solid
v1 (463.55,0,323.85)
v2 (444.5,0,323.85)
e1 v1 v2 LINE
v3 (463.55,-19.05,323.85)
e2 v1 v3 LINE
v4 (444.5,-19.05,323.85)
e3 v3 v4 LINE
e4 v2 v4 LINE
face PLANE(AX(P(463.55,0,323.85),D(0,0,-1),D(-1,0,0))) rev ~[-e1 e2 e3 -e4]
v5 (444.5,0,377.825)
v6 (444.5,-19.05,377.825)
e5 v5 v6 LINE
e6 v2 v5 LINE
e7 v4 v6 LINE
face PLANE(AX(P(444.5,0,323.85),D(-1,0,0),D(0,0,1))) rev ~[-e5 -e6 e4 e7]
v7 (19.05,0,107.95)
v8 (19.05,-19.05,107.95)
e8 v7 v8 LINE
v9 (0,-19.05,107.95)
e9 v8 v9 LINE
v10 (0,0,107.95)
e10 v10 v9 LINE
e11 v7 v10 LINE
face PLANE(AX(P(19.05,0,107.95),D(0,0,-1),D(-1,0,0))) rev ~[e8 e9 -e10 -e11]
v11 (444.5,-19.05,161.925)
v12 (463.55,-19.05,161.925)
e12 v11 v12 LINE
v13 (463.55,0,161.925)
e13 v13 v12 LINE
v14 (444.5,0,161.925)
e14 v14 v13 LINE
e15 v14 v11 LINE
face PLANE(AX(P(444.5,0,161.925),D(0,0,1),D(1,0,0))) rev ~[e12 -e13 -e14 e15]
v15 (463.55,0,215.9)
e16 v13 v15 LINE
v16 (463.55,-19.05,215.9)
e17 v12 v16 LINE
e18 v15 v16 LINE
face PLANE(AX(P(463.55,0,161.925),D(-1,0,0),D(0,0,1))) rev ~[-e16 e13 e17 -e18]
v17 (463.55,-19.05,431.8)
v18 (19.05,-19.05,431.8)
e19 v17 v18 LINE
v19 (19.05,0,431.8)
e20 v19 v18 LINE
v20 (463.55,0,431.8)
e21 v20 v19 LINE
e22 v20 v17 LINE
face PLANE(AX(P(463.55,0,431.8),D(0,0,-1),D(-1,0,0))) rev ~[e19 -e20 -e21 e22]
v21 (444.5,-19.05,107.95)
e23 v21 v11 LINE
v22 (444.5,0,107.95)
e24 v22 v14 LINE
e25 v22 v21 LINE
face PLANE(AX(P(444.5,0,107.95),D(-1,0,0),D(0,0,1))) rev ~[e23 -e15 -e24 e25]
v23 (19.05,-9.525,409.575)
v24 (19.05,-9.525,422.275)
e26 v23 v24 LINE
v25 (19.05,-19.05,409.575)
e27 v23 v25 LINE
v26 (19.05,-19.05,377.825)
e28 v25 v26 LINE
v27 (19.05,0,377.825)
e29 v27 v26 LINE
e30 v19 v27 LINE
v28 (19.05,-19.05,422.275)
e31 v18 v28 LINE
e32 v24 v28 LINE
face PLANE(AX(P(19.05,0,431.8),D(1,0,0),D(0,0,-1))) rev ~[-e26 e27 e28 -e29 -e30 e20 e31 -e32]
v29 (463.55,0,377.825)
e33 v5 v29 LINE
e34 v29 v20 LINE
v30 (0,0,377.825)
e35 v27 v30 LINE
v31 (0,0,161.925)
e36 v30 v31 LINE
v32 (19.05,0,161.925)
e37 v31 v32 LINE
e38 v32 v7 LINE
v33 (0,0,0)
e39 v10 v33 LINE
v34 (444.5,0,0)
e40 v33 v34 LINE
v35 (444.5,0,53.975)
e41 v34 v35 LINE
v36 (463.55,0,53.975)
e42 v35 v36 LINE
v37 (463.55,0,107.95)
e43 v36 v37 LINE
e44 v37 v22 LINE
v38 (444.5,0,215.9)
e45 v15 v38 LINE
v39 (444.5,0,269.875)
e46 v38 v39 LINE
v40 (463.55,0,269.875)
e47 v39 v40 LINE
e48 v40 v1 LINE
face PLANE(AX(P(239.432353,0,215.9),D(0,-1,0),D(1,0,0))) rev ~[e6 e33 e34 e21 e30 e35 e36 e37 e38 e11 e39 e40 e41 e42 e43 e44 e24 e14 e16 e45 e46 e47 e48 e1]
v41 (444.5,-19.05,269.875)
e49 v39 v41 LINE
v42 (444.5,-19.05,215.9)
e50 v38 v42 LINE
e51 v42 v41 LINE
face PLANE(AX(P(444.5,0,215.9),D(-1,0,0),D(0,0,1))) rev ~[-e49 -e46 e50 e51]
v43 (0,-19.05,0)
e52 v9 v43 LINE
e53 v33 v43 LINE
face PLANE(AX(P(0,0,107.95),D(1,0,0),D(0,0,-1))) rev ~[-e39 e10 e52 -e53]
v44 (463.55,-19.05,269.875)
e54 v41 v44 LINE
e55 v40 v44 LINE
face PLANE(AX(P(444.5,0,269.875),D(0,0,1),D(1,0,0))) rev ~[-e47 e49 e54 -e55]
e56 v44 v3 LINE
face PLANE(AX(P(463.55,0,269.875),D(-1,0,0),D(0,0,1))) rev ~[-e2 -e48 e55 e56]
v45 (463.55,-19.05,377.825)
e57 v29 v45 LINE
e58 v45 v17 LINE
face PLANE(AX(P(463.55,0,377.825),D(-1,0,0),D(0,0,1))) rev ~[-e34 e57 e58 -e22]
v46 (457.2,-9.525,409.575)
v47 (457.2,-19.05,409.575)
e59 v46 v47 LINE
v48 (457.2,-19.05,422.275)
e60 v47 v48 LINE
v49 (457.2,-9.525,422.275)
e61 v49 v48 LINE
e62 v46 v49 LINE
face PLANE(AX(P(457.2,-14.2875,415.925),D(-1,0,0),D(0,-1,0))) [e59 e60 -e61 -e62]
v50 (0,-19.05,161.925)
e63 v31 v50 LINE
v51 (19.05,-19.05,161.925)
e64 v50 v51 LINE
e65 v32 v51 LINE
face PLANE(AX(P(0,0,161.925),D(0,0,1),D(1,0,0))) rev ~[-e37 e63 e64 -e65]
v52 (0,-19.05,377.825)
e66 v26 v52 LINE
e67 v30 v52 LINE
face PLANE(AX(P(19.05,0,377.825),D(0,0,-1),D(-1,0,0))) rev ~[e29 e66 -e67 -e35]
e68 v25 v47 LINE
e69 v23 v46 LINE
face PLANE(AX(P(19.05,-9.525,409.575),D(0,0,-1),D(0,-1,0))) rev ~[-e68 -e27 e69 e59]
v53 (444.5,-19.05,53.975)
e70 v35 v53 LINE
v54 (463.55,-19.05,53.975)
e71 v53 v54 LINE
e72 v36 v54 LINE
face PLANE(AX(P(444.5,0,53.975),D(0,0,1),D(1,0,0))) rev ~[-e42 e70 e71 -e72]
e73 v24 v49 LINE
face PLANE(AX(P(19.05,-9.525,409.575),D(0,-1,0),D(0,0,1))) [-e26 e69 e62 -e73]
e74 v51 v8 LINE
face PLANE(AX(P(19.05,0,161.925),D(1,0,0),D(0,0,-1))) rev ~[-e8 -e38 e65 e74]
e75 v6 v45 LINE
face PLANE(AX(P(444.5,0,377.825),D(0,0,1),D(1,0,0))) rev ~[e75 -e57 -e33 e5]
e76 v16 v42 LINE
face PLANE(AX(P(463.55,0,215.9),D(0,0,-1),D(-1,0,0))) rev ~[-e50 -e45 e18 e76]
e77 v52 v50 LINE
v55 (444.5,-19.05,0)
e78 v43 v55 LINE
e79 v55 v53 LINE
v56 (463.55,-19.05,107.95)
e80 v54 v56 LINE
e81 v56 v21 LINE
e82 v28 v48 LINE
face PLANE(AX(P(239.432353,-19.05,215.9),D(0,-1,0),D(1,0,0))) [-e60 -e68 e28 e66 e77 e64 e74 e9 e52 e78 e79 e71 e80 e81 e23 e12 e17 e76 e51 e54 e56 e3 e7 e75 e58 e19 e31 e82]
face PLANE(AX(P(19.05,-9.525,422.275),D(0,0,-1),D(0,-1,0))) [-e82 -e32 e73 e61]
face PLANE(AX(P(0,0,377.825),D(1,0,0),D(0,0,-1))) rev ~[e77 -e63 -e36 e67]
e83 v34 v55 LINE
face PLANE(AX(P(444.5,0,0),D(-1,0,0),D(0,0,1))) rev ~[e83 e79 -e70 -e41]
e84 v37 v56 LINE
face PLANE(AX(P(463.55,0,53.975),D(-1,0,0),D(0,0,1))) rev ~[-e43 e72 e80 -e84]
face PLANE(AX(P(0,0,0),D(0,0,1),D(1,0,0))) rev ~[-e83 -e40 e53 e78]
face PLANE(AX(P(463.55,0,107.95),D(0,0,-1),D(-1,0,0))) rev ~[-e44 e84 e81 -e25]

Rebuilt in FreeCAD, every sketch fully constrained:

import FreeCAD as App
import Part
import Sketcher
from FreeCAD import Vector
Q = App.Units.Quantity


def add_polygon(sketch, points):
    """Adds a closed chain of lines whose ends are joined by coincident constraints."""
    first, n = sketch.GeometryCount, len(points)
    for a, b in zip(points, points[1:] + points[:1]):
        sketch.addGeometry(Part.LineSegment(App.Vector(*a, 0), App.Vector(*b, 0)), False)
    for i in range(n):
        sketch.addConstraint(Sketcher.Constraint("Coincident", first + i, 2, first + (i + 1) % n, 1))

doc = App.newDocument("Part")
body = doc.addObject("PartDesign::Body", "Body")

sketch1 = doc.addObject("Sketcher::SketchObject", "Sketch")
body.addObject(sketch1)
sketch1.AttachmentSupport = (doc.XZ_Plane, [""])
sketch1.MapMode = "FlatFace"
add_polygon(sketch1, [(0, 108), (0, 0), (444, 0), (444, 54), (464, 54), (464, 108), (444, 108), (444, 162), (464, 162), (464, 216), (444, 216), (444, 270), (464, 270), (464, 324), (444, 324), (444, 378), (464, 378), (464, 432), (19, 432), (19, 378), (0, 378), (0, 162), (19, 162), (19, 108)])
sketch1.addConstraint([
    Sketcher.Constraint("Vertical", 0),
    Sketcher.Constraint("Horizontal", 1),
    Sketcher.Constraint("Vertical", 2),
    Sketcher.Constraint("Horizontal", 3),
    Sketcher.Constraint("Vertical", 4),
    Sketcher.Constraint("Horizontal", 5),
    Sketcher.Constraint("Vertical", 6),
    Sketcher.Constraint("Horizontal", 7),
    Sketcher.Constraint("Vertical", 8),
    Sketcher.Constraint("Horizontal", 9),
    Sketcher.Constraint("Vertical", 10),
    Sketcher.Constraint("Horizontal", 11),
    Sketcher.Constraint("Vertical", 12),
    Sketcher.Constraint("Horizontal", 13),
    Sketcher.Constraint("Vertical", 14),
    Sketcher.Constraint("Horizontal", 15),
    Sketcher.Constraint("Vertical", 16),
    Sketcher.Constraint("Horizontal", 17),
    Sketcher.Constraint("Vertical", 18),
    Sketcher.Constraint("Horizontal", 19),
    Sketcher.Constraint("Vertical", 20),
    Sketcher.Constraint("Horizontal", 21),
    Sketcher.Constraint("Vertical", 22),
    Sketcher.Constraint("Horizontal", 23),
    Sketcher.Constraint("Coincident", 0, 2, -1, 1),
    Sketcher.Constraint("PointOnObject", 19, 2, -2),
    Sketcher.Constraint("Horizontal", 15, 2, 18, 2),
    Sketcher.Constraint("Horizontal", 7, 2, 20, 2),
    Sketcher.Constraint("Horizontal", 5, 2, 22, 2),
    Sketcher.Constraint("Vertical", 2, 2, 5, 2),
    Sketcher.Constraint("Vertical", 4, 2, 7, 2),
    Sketcher.Constraint("Vertical", 6, 2, 9, 2),
    Sketcher.Constraint("Vertical", 8, 2, 11, 2),
    Sketcher.Constraint("Vertical", 10, 2, 13, 2),
    Sketcher.Constraint("Vertical", 12, 2, 15, 2),
    Sketcher.Constraint("Vertical", 18, 2, 21, 2),
    Sketcher.Constraint("Equal", 1, 17),
    Sketcher.Constraint("Equal", 2, 4),
    Sketcher.Constraint("Equal", 4, 6),
    Sketcher.Constraint("Equal", 6, 8),
    Sketcher.Constraint("Equal", 8, 10),
    Sketcher.Constraint("Equal", 10, 12),
    Sketcher.Constraint("Equal", 12, 14),
    Sketcher.Constraint("Equal", 14, 16),
    Sketcher.Constraint("DistanceX", 1, 1, 1, 2, Q("17.5 in")),
    Sketcher.Constraint("DistanceY", 20, 2, 20, 1, Q("8.5 in")),
    Sketcher.Constraint("DistanceX", 3, 1, 3, 2, Q("0.75 in")),
])
pad1 = doc.addObject("PartDesign::Pad", "Pad")
body.addObject(pad1)
pad1.Profile = sketch1
pad1.Length = Q("0.75 in")

sketch2 = doc.addObject("Sketcher::SketchObject", "Sketch001")
body.addObject(sketch2)
sketch2.AttachmentSupport = (doc.YZ_Plane, [""])
sketch2.MapMode = "FlatFace"
sketch2.AttachmentOffset = App.Placement(Vector(0, 0, 0.75 * 25.4), App.Rotation())
add_polygon(sketch2, [(-10, 422), (-10, 410), (-19, 410), (-19, 422)])
sketch2.addConstraint([
    Sketcher.Constraint("Vertical", 0),
    Sketcher.Constraint("Horizontal", 1),
    Sketcher.Constraint("Vertical", 2),
    Sketcher.Constraint("Horizontal", 3),
    Sketcher.Constraint("DistanceY", 0, 2, 0, 1, Q("0.5 in")),
    Sketcher.Constraint("DistanceX", 1, 2, 1, 1, Q("0.375 in")),
    Sketcher.Constraint("DistanceX", 1, 2, -1, 1, Q("0.75 in")),
    Sketcher.Constraint("DistanceY", -1, 1, 0, 2, Q("16.125 in")),
])
pocket1 = doc.addObject("PartDesign::Pocket", "Pocket")
body.addObject(pocket1)
pocket1.Profile = sketch2
pocket1.Length = Q("17.25 in")
pocket1.Reversed = True

doc.recompute()
